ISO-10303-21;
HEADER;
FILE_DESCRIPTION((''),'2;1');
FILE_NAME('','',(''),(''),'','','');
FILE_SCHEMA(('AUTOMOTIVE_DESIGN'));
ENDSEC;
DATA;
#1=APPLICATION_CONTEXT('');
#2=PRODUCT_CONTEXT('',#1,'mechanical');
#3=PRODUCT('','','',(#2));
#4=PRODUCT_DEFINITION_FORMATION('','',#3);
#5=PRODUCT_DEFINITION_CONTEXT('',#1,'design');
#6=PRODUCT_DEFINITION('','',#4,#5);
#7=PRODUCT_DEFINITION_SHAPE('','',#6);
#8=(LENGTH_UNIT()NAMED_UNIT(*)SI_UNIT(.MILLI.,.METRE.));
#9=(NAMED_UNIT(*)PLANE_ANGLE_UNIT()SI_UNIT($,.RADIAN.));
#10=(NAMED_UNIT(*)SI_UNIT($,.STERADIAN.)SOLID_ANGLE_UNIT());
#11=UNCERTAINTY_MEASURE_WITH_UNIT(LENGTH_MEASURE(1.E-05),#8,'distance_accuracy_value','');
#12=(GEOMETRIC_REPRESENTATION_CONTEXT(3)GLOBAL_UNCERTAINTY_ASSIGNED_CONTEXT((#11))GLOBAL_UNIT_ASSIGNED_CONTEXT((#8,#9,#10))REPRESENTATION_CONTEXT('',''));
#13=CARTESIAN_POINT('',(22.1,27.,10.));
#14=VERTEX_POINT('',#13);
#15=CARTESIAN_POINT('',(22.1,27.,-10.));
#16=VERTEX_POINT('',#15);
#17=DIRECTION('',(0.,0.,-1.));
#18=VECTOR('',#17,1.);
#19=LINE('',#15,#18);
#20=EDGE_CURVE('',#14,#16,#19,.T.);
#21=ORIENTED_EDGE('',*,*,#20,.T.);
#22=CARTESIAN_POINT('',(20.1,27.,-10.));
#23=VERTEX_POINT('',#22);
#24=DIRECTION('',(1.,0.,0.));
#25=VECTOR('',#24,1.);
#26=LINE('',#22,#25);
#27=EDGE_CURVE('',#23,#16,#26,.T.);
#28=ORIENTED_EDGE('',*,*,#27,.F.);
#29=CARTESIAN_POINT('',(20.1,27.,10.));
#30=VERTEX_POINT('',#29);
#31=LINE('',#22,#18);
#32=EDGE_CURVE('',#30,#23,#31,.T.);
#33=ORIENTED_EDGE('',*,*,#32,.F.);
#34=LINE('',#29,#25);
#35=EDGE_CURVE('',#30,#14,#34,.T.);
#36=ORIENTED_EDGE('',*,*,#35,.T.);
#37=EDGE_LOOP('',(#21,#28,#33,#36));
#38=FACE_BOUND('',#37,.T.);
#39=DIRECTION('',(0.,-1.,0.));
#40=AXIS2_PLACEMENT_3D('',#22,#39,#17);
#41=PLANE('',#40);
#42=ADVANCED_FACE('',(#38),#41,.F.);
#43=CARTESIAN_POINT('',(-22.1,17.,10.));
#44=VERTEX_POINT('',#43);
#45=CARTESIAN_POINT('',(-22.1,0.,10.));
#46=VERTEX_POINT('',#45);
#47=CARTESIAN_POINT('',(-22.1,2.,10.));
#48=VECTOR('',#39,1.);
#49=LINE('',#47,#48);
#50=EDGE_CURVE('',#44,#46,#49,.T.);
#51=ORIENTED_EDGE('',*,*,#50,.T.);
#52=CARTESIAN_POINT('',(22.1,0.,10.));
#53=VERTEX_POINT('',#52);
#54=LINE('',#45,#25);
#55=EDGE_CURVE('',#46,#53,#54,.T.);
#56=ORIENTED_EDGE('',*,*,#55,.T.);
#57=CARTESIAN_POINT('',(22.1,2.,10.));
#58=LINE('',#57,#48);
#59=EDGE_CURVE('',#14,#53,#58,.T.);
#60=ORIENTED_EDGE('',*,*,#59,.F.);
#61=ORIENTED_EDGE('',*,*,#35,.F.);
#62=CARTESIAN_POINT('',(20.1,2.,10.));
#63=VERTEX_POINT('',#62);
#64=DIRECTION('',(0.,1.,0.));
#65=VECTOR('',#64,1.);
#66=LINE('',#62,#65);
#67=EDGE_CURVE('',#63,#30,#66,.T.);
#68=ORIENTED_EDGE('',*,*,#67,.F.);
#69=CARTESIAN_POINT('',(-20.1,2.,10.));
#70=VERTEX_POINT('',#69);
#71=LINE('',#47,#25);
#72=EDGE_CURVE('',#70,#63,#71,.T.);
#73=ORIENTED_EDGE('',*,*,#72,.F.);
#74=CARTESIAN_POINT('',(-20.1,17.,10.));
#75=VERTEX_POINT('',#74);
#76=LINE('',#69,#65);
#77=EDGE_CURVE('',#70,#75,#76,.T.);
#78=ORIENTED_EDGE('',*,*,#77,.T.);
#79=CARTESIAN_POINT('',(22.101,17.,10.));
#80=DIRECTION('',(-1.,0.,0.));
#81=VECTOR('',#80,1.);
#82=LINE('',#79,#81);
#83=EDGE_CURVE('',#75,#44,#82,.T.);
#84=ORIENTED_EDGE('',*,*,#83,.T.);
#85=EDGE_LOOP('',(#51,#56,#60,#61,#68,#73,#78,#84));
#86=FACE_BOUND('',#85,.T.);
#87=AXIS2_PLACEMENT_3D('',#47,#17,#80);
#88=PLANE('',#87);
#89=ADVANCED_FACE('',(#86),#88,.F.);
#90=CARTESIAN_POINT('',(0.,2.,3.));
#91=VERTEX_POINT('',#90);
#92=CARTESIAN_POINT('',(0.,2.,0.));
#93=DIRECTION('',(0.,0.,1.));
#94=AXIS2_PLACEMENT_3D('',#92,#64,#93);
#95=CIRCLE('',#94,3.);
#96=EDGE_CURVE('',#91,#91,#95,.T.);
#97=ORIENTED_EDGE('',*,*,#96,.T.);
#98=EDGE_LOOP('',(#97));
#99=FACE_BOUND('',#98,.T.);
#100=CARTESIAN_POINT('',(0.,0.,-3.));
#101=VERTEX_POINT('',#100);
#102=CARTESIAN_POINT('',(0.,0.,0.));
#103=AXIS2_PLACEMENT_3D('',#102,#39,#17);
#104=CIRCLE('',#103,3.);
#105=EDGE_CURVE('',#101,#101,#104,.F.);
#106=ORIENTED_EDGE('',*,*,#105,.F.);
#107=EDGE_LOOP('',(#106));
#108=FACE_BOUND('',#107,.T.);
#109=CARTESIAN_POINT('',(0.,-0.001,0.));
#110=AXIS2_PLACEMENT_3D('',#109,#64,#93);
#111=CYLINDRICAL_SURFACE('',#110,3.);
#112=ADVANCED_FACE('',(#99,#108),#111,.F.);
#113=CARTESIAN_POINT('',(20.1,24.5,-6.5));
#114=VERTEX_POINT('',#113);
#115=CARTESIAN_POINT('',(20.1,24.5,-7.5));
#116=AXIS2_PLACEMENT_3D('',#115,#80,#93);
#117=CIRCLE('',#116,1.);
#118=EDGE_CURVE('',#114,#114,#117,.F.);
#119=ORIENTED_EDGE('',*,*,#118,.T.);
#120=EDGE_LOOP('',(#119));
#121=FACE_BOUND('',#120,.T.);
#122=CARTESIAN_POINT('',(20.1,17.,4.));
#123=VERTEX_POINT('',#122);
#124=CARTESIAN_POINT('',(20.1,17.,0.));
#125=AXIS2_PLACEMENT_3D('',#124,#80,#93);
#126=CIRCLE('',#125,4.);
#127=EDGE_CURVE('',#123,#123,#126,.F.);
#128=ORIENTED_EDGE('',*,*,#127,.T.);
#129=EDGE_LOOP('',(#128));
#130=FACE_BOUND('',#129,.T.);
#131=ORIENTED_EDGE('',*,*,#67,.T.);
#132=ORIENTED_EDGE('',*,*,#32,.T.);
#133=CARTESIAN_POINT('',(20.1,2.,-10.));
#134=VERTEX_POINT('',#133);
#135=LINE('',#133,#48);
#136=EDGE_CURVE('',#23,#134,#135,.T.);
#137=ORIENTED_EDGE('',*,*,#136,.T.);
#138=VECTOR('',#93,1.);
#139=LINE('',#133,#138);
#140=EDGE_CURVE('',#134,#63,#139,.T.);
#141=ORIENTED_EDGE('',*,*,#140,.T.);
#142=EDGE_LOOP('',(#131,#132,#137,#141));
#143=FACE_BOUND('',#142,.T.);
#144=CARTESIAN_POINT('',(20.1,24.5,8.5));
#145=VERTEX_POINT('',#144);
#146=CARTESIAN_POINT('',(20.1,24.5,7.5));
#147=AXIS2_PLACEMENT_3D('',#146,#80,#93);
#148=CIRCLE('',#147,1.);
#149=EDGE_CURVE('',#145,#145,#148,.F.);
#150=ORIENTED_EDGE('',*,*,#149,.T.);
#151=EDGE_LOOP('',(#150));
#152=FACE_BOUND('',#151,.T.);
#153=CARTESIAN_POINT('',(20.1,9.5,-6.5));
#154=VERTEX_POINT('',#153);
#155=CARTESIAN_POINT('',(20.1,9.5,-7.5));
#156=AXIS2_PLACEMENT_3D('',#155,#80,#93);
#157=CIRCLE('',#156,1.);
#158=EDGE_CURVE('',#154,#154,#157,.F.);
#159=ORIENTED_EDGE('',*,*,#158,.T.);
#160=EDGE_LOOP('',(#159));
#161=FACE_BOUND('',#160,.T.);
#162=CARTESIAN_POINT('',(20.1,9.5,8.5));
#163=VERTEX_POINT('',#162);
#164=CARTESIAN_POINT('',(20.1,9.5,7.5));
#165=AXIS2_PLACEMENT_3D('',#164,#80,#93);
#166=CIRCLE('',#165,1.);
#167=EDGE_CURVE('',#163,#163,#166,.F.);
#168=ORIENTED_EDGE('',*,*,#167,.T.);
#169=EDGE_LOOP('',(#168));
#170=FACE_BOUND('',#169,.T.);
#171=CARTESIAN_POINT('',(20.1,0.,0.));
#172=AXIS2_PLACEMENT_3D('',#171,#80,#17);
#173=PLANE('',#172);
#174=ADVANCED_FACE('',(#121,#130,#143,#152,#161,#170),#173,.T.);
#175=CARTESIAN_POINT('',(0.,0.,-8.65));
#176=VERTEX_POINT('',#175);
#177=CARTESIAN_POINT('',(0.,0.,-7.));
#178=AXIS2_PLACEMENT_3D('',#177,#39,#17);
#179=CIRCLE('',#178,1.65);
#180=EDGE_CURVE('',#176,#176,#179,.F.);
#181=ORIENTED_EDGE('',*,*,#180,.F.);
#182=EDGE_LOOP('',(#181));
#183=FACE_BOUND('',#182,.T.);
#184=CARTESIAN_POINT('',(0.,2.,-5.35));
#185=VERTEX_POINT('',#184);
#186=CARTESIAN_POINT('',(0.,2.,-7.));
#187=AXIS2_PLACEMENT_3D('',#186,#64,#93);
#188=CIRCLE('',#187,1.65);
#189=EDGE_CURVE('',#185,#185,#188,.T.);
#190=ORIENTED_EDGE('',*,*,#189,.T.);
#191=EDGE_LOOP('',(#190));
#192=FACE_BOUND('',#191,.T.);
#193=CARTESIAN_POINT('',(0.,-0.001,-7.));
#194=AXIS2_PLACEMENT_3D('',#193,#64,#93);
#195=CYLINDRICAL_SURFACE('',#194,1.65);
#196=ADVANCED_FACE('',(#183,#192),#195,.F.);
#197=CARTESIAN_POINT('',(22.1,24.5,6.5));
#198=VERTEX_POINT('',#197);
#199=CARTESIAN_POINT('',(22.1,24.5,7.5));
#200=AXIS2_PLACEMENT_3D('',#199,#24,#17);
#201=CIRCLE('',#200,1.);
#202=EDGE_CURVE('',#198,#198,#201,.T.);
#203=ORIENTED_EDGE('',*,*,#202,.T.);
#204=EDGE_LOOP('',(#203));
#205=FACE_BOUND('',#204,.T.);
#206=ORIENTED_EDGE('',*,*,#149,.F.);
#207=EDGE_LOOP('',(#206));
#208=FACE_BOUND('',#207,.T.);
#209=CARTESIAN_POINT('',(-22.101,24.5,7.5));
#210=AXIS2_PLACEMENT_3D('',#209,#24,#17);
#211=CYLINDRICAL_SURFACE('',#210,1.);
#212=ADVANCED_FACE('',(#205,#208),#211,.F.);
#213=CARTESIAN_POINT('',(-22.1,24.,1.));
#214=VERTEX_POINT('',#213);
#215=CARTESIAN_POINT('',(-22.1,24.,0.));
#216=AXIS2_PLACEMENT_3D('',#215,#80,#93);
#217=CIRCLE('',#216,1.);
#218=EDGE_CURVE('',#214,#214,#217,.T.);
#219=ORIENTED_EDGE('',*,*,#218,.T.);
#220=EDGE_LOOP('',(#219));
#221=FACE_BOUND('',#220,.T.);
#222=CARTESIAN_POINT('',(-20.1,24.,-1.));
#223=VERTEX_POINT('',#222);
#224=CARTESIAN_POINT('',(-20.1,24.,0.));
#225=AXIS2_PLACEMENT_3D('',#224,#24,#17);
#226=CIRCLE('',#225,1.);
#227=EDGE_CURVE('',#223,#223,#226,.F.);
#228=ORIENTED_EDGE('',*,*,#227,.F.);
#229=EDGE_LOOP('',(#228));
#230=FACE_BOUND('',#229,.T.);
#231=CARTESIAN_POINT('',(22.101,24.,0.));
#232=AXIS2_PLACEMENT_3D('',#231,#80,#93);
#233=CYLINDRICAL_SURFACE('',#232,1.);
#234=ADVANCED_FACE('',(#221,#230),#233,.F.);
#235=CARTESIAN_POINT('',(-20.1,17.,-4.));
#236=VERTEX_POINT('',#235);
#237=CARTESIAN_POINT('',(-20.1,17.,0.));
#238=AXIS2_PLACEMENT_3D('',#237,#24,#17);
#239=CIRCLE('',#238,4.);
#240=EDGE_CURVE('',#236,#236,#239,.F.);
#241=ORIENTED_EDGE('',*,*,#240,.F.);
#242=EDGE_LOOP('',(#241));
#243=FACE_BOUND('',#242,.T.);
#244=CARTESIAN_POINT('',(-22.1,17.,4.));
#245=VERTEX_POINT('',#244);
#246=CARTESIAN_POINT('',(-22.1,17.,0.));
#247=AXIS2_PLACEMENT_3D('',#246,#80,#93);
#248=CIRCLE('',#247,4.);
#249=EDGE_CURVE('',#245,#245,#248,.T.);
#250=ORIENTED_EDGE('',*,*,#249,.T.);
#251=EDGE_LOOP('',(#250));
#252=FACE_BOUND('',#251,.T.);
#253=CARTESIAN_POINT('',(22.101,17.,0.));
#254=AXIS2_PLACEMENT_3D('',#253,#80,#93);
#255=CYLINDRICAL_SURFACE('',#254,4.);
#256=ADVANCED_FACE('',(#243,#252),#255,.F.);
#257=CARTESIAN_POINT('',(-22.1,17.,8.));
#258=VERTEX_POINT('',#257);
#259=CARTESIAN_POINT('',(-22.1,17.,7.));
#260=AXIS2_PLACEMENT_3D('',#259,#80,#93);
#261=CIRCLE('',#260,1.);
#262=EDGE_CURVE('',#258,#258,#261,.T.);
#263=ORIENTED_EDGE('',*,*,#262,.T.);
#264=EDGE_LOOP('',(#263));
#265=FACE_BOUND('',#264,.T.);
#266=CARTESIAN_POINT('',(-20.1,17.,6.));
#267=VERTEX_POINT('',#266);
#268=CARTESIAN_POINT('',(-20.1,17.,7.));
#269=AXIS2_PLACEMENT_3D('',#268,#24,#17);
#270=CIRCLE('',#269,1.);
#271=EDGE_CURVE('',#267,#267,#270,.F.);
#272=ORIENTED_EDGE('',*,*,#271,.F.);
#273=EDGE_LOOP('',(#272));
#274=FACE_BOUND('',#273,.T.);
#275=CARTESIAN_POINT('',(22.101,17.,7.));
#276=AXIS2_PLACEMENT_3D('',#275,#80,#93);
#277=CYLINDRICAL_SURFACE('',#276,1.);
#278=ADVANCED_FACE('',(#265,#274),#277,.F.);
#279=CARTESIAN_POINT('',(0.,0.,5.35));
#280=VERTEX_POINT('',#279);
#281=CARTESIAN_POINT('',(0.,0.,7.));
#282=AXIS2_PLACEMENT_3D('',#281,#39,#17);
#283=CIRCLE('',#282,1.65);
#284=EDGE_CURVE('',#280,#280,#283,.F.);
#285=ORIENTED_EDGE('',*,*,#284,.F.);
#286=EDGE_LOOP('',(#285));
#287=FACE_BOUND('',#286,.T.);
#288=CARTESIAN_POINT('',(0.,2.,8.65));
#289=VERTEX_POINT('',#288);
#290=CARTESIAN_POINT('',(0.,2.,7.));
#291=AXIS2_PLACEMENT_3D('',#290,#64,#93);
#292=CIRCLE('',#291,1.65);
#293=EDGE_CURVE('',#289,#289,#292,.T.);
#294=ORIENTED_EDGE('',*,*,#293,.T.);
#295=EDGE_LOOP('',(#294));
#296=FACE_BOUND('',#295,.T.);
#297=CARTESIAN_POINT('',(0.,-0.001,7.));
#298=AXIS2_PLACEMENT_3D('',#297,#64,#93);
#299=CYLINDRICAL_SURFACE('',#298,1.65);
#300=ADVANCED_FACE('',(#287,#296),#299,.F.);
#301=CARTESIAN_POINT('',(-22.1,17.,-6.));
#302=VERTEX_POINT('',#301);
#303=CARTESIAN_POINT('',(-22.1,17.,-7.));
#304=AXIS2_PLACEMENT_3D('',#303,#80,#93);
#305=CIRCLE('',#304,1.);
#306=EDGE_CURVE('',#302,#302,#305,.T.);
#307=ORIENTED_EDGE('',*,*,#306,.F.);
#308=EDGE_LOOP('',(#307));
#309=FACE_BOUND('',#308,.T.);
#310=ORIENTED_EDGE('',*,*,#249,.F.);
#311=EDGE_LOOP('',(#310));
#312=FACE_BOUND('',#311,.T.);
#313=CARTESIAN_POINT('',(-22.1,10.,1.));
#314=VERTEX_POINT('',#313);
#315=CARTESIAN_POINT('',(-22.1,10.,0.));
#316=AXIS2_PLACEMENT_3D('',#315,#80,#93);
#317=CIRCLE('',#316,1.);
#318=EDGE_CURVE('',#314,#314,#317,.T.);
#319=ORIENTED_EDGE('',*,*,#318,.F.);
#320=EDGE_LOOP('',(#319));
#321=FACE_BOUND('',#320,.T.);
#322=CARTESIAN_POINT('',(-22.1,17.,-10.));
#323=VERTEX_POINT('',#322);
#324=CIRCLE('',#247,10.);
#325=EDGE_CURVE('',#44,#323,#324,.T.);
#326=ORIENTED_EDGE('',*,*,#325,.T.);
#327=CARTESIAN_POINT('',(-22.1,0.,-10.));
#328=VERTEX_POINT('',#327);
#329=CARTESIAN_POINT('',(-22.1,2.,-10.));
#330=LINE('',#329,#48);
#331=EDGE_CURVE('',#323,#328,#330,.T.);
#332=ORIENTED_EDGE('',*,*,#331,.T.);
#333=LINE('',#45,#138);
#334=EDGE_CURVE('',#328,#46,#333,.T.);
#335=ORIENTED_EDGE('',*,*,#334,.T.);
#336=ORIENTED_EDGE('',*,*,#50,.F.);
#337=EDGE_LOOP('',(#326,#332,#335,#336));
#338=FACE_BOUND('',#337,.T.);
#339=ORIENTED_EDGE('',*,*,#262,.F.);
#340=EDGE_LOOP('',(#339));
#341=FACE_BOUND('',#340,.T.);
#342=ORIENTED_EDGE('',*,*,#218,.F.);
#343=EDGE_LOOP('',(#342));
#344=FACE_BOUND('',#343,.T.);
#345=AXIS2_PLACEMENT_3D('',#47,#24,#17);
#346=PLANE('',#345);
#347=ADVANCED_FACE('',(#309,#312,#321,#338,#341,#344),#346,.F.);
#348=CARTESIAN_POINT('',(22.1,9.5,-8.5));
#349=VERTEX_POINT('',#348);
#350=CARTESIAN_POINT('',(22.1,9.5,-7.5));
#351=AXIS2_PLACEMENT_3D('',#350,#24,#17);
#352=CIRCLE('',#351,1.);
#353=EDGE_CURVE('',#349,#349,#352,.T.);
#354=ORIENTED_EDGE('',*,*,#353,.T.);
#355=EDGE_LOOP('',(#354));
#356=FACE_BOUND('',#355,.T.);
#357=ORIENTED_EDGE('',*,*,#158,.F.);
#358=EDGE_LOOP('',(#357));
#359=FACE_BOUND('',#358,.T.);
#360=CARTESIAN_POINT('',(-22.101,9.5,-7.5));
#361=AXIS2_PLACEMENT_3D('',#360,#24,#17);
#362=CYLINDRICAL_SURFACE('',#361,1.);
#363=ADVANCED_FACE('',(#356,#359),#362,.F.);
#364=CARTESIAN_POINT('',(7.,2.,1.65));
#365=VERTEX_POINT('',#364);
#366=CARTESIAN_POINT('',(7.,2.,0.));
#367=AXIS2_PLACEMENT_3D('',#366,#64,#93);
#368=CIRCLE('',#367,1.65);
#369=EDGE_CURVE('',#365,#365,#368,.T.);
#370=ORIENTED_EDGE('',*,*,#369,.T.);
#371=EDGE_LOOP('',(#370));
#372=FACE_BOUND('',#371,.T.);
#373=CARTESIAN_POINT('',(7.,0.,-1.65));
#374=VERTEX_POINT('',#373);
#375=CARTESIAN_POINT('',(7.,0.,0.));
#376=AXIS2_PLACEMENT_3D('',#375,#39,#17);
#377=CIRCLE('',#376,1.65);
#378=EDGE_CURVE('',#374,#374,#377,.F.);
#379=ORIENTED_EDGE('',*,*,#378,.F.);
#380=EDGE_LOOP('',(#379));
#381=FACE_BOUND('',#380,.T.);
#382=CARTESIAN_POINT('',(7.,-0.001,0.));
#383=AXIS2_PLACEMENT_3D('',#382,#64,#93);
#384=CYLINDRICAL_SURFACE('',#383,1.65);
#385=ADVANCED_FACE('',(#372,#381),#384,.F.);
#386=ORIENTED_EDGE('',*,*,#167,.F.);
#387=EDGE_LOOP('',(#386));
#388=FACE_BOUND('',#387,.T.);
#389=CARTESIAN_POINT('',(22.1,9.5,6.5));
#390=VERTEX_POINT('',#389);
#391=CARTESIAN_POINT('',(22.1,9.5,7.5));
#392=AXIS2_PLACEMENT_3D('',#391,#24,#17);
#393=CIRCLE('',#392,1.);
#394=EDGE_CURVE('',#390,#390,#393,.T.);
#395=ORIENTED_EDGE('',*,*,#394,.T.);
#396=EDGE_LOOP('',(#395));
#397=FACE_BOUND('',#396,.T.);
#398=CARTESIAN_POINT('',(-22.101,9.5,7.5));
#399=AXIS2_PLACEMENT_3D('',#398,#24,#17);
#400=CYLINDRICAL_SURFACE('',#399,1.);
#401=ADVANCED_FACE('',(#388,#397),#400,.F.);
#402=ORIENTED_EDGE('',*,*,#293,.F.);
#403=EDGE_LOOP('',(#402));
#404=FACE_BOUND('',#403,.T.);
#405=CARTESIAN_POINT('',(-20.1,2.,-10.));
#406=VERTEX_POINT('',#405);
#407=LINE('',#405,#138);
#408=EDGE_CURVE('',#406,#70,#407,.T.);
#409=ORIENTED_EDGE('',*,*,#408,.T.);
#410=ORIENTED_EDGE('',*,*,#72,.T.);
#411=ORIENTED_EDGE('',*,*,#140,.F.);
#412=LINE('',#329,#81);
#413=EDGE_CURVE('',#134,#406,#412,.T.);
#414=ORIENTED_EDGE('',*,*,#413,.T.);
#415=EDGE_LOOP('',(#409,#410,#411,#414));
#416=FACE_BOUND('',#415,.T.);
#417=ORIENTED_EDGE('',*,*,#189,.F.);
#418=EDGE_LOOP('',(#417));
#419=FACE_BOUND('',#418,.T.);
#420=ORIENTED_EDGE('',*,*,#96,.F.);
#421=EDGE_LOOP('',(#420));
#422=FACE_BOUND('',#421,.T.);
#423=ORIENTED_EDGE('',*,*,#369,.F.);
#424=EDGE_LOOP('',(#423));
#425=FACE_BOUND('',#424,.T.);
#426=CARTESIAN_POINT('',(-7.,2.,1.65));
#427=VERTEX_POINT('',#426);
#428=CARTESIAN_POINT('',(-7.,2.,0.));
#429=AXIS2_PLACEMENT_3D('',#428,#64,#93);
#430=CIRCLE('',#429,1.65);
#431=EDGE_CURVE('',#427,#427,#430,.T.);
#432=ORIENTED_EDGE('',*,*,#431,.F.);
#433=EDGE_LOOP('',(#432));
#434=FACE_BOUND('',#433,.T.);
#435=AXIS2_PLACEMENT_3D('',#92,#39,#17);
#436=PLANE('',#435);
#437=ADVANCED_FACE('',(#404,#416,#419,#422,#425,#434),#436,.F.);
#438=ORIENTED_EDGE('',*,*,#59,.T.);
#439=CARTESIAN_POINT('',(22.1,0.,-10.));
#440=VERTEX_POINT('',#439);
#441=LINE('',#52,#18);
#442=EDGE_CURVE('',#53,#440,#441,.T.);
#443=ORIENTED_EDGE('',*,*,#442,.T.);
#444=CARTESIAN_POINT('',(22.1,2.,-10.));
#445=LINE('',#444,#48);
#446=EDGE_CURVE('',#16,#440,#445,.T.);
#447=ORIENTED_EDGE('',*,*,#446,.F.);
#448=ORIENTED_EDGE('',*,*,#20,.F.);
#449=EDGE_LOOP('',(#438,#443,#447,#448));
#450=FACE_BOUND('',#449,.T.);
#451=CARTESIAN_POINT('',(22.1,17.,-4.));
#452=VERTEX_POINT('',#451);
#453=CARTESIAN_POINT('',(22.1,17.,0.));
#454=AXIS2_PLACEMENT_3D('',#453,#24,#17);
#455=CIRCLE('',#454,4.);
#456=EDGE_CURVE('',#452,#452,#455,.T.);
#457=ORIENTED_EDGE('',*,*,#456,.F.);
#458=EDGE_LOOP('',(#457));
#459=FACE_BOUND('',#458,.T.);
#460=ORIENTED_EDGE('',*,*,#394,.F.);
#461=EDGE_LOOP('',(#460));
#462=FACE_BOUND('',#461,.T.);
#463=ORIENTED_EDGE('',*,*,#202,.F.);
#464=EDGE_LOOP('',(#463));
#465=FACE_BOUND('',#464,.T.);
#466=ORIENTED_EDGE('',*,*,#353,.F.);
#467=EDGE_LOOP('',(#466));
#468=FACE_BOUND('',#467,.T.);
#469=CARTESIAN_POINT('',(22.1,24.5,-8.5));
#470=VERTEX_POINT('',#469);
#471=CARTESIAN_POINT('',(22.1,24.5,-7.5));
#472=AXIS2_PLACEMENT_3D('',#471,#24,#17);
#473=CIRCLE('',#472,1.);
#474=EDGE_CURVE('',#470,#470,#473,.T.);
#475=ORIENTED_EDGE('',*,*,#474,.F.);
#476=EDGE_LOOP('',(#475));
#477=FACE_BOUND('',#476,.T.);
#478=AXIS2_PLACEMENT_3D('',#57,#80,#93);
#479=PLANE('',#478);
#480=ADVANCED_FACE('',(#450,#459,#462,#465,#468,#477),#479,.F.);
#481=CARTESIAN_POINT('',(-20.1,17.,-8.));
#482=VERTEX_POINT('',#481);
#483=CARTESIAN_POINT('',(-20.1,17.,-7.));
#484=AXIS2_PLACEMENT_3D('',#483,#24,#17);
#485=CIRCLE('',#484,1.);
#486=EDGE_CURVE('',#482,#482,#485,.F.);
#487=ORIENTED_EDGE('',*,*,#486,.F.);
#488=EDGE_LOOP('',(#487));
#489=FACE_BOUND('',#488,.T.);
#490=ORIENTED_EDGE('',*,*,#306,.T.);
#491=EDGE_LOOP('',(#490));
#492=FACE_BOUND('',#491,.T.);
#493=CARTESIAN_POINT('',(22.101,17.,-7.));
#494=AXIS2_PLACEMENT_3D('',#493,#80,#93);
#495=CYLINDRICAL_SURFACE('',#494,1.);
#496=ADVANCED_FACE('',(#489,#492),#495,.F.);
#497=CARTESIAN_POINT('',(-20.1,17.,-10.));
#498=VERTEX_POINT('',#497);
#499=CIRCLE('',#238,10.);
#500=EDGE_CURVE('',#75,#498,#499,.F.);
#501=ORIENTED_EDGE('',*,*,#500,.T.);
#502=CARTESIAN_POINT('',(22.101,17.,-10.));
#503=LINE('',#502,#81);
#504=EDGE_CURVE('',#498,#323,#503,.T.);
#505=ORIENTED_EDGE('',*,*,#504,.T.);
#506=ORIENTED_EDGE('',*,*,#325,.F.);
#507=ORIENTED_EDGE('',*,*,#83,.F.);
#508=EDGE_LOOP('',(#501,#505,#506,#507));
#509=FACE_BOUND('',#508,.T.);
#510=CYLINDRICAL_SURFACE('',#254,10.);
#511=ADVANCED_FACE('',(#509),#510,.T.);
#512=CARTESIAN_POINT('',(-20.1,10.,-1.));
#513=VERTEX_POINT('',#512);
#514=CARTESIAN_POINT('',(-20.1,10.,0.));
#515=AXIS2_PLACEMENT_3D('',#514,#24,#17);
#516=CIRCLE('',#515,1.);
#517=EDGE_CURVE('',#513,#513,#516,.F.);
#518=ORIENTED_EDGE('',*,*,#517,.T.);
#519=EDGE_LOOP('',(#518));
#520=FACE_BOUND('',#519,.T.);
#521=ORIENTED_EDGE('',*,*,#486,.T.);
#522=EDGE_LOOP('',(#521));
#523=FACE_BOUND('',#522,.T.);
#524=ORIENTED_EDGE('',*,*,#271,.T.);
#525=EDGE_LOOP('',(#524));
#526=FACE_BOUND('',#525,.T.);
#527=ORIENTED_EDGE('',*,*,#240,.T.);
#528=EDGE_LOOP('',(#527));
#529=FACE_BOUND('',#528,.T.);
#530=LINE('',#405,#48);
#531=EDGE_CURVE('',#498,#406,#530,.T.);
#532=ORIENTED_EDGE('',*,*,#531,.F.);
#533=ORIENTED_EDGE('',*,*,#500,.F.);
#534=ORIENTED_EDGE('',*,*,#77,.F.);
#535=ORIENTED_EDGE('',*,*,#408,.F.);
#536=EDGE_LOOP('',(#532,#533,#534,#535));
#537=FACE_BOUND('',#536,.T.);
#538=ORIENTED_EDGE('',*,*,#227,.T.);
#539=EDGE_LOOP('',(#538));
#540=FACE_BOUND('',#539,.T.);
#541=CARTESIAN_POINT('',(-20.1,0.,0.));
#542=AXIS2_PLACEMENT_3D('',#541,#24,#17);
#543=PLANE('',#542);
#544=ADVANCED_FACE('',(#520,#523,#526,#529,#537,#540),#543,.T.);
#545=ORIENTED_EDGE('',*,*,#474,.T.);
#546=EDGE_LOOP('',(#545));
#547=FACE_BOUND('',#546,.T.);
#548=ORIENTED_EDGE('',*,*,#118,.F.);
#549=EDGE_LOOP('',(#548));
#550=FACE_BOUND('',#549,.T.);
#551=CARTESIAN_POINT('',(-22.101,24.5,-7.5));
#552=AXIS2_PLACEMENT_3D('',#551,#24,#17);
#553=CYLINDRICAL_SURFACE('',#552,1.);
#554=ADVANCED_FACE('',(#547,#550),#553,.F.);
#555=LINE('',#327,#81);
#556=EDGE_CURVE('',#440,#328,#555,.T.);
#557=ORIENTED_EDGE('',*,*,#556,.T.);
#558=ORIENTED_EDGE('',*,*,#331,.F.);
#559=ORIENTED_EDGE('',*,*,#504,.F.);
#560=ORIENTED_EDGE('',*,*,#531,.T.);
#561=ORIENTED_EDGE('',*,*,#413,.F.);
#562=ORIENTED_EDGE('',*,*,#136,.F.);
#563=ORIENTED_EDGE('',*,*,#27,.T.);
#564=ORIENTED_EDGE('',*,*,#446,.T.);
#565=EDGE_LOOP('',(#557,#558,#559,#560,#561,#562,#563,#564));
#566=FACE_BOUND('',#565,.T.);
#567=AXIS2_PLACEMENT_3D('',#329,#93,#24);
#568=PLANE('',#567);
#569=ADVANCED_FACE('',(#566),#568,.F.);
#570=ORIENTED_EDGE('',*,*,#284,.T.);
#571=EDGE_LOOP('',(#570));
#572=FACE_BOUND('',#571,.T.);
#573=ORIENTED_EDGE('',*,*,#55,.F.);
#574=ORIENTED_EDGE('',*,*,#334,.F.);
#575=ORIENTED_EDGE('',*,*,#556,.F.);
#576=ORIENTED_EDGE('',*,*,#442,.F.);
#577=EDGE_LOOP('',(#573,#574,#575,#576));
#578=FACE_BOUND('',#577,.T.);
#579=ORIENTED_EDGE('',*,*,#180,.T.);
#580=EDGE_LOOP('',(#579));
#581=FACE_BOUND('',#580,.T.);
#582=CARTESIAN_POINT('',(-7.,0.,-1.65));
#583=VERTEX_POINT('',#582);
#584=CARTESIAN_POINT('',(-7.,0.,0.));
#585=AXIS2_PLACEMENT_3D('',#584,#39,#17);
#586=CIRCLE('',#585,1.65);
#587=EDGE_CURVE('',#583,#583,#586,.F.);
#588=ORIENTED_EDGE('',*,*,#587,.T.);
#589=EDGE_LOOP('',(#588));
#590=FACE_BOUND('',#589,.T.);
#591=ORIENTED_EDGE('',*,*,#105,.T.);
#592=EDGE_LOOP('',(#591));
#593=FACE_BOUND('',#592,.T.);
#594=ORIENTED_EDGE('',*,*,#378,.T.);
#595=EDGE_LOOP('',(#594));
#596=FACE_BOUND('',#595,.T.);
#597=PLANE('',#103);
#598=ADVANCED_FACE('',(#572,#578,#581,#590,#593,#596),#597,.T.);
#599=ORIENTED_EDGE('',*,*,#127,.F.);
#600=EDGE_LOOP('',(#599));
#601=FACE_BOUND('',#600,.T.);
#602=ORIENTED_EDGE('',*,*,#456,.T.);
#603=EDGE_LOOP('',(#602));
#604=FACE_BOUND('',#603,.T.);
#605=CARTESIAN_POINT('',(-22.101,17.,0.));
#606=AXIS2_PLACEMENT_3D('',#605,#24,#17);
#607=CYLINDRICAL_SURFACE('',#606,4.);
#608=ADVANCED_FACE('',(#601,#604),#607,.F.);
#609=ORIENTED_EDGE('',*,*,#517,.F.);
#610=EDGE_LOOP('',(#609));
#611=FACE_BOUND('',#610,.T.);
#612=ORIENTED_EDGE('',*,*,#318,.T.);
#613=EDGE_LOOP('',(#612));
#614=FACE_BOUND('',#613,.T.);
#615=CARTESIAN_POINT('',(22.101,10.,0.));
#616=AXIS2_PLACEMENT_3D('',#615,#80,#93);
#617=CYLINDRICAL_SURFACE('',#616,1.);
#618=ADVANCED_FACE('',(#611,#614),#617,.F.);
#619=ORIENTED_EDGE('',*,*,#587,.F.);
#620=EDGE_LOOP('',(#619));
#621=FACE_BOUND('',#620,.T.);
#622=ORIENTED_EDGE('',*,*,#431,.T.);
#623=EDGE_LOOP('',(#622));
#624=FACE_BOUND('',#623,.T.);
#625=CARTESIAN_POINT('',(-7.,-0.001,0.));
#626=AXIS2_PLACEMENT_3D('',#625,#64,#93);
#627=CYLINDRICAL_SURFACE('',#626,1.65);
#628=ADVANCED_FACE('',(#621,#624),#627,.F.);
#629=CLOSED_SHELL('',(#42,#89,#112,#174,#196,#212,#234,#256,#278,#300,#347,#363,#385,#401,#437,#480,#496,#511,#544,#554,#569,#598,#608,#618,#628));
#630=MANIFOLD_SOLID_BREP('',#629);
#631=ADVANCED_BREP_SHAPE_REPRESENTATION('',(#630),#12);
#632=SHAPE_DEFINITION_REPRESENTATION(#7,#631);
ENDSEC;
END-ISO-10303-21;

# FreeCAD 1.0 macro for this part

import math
import FreeCAD as App
import Part
import Sketcher
from FreeCAD import Vector
Q = App.Units.Quantity


def add_polygon(sketch, points):
    """Adds a closed chain of lines whose ends are joined by coincident constraints."""
    first, n = sketch.GeometryCount, len(points)
    for a, b in zip(points, points[1:] + points[:1]):
        sketch.addGeometry(Part.LineSegment(App.Vector(*a, 0), App.Vector(*b, 0)), False)
    for i in range(n):
        sketch.addConstraint(Sketcher.Constraint("Coincident", first + i, 2, first + (i + 1) % n, 1))

doc = App.newDocument("Part")
body = doc.addObject("PartDesign::Body", "Body")

# Sketch on XZ plane
sketch1 = body.newObject("Sketcher::SketchObject", "Sketch")
sketch1.AttachmentSupport = (doc.getObject("XZ_Plane"), [""])
sketch1.MapMode = "FlatFace"
add_polygon(sketch1, [(-22, -10), (-22, 10), (22, 10), (22, -10)])  # lines 0-3
sketch1.addConstraint([
    Sketcher.Constraint("Vertical", 0),
    Sketcher.Constraint("Horizontal", 1),
    Sketcher.Constraint("Vertical", 2),
    Sketcher.Constraint("Horizontal", 3),
    Sketcher.Constraint("Symmetric", 0, 2, 2, 2, -1, 1),
    Sketcher.Constraint("DistanceY", 0, 1, 0, 2, Q("20 mm")),
    Sketcher.Constraint("DistanceX", 1, 1, 1, 2, Q("44.2 mm")),
])
pad1 = body.newObject("PartDesign::Pad", "Pad")
pad1.Profile = sketch1
pad1.Length = 2
pad1.Reversed = True

# Sketch on XZ plane
sketch2 = body.newObject("Sketcher::SketchObject", "Sketch001")
sketch2.AttachmentSupport = (doc.getObject("XZ_Plane"), [""])
sketch2.MapMode = "FlatFace"
sketch2.AttachmentOffset = App.Placement(Vector(0, 0, -2), App.Rotation())
sketch2.addGeometry(Part.Circle(Vector(0, 0, 0), Vector(0, 0, 1), 3), False)
sketch2.addConstraint([
    Sketcher.Constraint("Coincident", 0, 3, -1, 1),
    Sketcher.Constraint("Diameter", 0, Q("6 mm")),
])
pocket1 = body.newObject("PartDesign::Pocket", "Pocket")
pocket1.Profile = sketch2
pocket1.Type = "UpToFirst"
pocket1.Reversed = True

# Sketch on XZ plane
sketch3 = body.newObject("Sketcher::SketchObject", "Sketch002")
sketch3.AttachmentSupport = (doc.getObject("XZ_Plane"), [""])
sketch3.MapMode = "FlatFace"
sketch3.AttachmentOffset = App.Placement(Vector(0, 0, -2), App.Rotation())
sketch3.addGeometry(Part.Circle(Vector(0, -7, 0), Vector(0, 0, 1), 1.6), False)
sketch3.addConstraint([
    Sketcher.Constraint("PointOnObject", 0, 3, -2),
    Sketcher.Constraint("Diameter", 0, Q("3.3 mm")),
    Sketcher.Constraint("DistanceY", 0, 3, -1, 1, Q("7 mm")),
])
pocket2 = body.newObject("PartDesign::Pocket", "Pocket001")
pocket2.Profile = sketch3
pocket2.Type = "UpToFirst"
pocket2.Reversed = True

# Sketch on XZ plane
sketch4 = body.newObject("Sketcher::SketchObject", "Sketch003")
sketch4.AttachmentSupport = (doc.getObject("XZ_Plane"), [""])
sketch4.MapMode = "FlatFace"
sketch4.AttachmentOffset = App.Placement(Vector(0, 0, -2), App.Rotation())
sketch4.addGeometry(Part.Circle(Vector(7, 0, 0), Vector(0, 0, 1), 1.6), False)
sketch4.addConstraint([
    Sketcher.Constraint("PointOnObject", 0, 3, -1),
    Sketcher.Constraint("Diameter", 0, Q("3.3 mm")),
    Sketcher.Constraint("DistanceX", -1, 1, 0, 3, Q("7 mm")),
])
pocket3 = body.newObject("PartDesign::Pocket", "Pocket002")
pocket3.Profile = sketch4
pocket3.Type = "UpToFirst"
pocket3.Reversed = True

# Sketch on XZ plane
sketch5 = body.newObject("Sketcher::SketchObject", "Sketch004")
sketch5.AttachmentSupport = (doc.getObject("XZ_Plane"), [""])
sketch5.MapMode = "FlatFace"
sketch5.AttachmentOffset = App.Placement(Vector(0, 0, -2), App.Rotation())
sketch5.addGeometry(Part.Circle(Vector(0, 7, 0), Vector(0, 0, 1), 1.6), False)
sketch5.addConstraint([
    Sketcher.Constraint("PointOnObject", 0, 3, -2),
    Sketcher.Constraint("Diameter", 0, Q("3.3 mm")),
    Sketcher.Constraint("DistanceY", -1, 1, 0, 3, Q("7 mm")),
])
pocket4 = body.newObject("PartDesign::Pocket", "Pocket003")
pocket4.Profile = sketch5
pocket4.Type = "UpToFirst"
pocket4.Reversed = True

# Sketch on XZ plane
sketch6 = body.newObject("Sketcher::SketchObject", "Sketch005")
sketch6.AttachmentSupport = (doc.getObject("XZ_Plane"), [""])
sketch6.MapMode = "FlatFace"
sketch6.AttachmentOffset = App.Placement(Vector(0, 0, -2), App.Rotation())
sketch6.addGeometry(Part.Circle(Vector(-7, 0, 0), Vector(0, 0, 1), 1.6), False)
sketch6.addConstraint([
    Sketcher.Constraint("PointOnObject", 0, 3, -1),
    Sketcher.Constraint("Diameter", 0, Q("3.3 mm")),
    Sketcher.Constraint("DistanceX", 0, 3, -1, 1, Q("7 mm")),
])
pocket5 = body.newObject("PartDesign::Pocket", "Pocket004")
pocket5.Profile = sketch6
pocket5.Type = "UpToFirst"
pocket5.Reversed = True

# Sketch on YZ plane
sketch7 = body.newObject("Sketcher::SketchObject", "Sketch006")
sketch7.AttachmentSupport = (doc.getObject("YZ_Plane"), [""])
sketch7.MapMode = "FlatFace"
sketch7.AttachmentOffset = App.Placement(Vector(0, 0, -22.1), App.Rotation())
add_polygon(sketch7, [(27, -10), (2, -10), (2, 10), (27, 10)])  # lines 0-3
sketch7.addConstraint([
    Sketcher.Constraint("Horizontal", 0),
    Sketcher.Constraint("Vertical", 1),
    Sketcher.Constraint("Horizontal", 2),
    Sketcher.Constraint("Vertical", 3),
    Sketcher.Constraint("DistanceX", 0, 2, 0, 1, Q("25 mm")),
    Sketcher.Constraint("DistanceY", 1, 1, 1, 2, Q("20 mm")),
    Sketcher.Constraint("DistanceX", -1, 1, 0, 2, Q("2 mm")),
    Sketcher.Constraint("DistanceY", 0, 2, -1, 1, Q("10 mm")),
])
pad2 = body.newObject("PartDesign::Pad", "Pad001")
pad2.Profile = sketch7
pad2.Length = 2
doc.recompute()

mirrored = body.newObject("PartDesign::Mirrored", "Mirrored")
mirrored.Originals = [pad2]
mirrored.MirrorPlane = (doc.getObject("YZ_Plane"), [""])
body.Tip = mirrored

# Sketch on YZ plane
sketch8 = body.newObject("Sketcher::SketchObject", "Sketch007")
sketch8.AttachmentSupport = (doc.getObject("YZ_Plane"), [""])
sketch8.MapMode = "FlatFace"
sketch8.AttachmentOffset = App.Placement(Vector(0, 0, -22.1), App.Rotation())
sketch8.addGeometry([
    Part.ArcOfCircle(Part.Circle(Vector(17, 0, 0), Vector(0, 0, 1), 10), math.radians(-90), math.radians(0)),
    Part.LineSegment(Vector(27, 0, 0), Vector(27, -10, 0)),
    Part.LineSegment(Vector(27, -10, 0), Vector(17, -10, 0)),
], False)
sketch8.addConstraint([
    Sketcher.Constraint("Tangent", 0, 2, 1, 1),
    Sketcher.Constraint("Coincident", 1, 2, 2, 1),
    Sketcher.Constraint("Tangent", 2, 2, 0, 1),
    Sketcher.Constraint("Vertical", 1),
    Sketcher.Constraint("Horizontal", 2),
    Sketcher.Constraint("PointOnObject", 0, 3, -1),
    Sketcher.Constraint("Radius", 0, Q("10 mm")),
    Sketcher.Constraint("DistanceX", -1, 1, 0, 3, Q("17 mm")),
])
pocket6 = body.newObject("PartDesign::Pocket", "Pocket005")
pocket6.Profile = sketch8
pocket6.Type = "UpToFirst"
pocket6.Reversed = True

# Sketch on YZ plane
sketch9 = body.newObject("Sketcher::SketchObject", "Sketch008")
sketch9.AttachmentSupport = (doc.getObject("YZ_Plane"), [""])
sketch9.MapMode = "FlatFace"
sketch9.AttachmentOffset = App.Placement(Vector(0, 0, -22.1), App.Rotation())
sketch9.addGeometry([
    Part.LineSegment(Vector(27, 10, 0), Vector(27, 0, 0)),
    Part.ArcOfCircle(Part.Circle(Vector(17, 0, 0), Vector(0, 0, 1), 10), math.radians(0), math.radians(90)),
    Part.LineSegment(Vector(17, 10, 0), Vector(27, 10, 0)),
], False)
sketch9.addConstraint([
    Sketcher.Constraint("Tangent", 0, 2, 1, 1),
    Sketcher.Constraint("Tangent", 1, 2, 2, 1),
    Sketcher.Constraint("Coincident", 2, 2, 0, 1),
    Sketcher.Constraint("Vertical", 0),
    Sketcher.Constraint("Horizontal", 2),
    Sketcher.Constraint("PointOnObject", 1, 3, -1),
    Sketcher.Constraint("Radius", 1, Q("10 mm")),
    Sketcher.Constraint("DistanceX", -1, 1, 1, 3, Q("17 mm")),
])
pocket7 = body.newObject("PartDesign::Pocket", "Pocket006")
pocket7.Profile = sketch9
pocket7.Type = "UpToFirst"
pocket7.Reversed = True

# Sketch on YZ plane
sketch10 = body.newObject("Sketcher::SketchObject", "Sketch009")
sketch10.AttachmentSupport = (doc.getObject("YZ_Plane"), [""])
sketch10.MapMode = "FlatFace"
sketch10.AttachmentOffset = App.Placement(Vector(0, 0, -22.1), App.Rotation())
sketch10.addGeometry([
    Part.ArcOfCircle(Part.Circle(Vector(10, 0, 0), Vector(0, 0, 1), 1), math.radians(0), math.radians(90)),
    Part.LineSegment(Vector(11, 0, 0), Vector(9, 0, 0)),
    Part.ArcOfCircle(Part.Circle(Vector(10, 0, 0), Vector(0, 0, 1), 1), math.radians(90), math.radians(180)),
], False)
sketch10.addConstraint([
    Sketcher.Constraint("Coincident", 0, 1, 1, 1),
    Sketcher.Constraint("Coincident", 1, 2, 2, 2),
    Sketcher.Constraint("Tangent", 2, 1, 0, 2),
    Sketcher.Constraint("Horizontal", 1),
    Sketcher.Constraint("Equal", 0, 2),
    Sketcher.Constraint("PointOnObject", 0, 3, -1),
    Sketcher.Constraint("PointOnObject", 0, 1, -1),
    Sketcher.Constraint("Vertical", 0, 3, 2, 1),
    Sketcher.Constraint("Radius", 0, Q("1 mm")),
    Sketcher.Constraint("DistanceX", -1, 1, 0, 3, Q("10 mm")),
])
pocket8 = body.newObject("PartDesign::Pocket", "Pocket007")
pocket8.Profile = sketch10
pocket8.Type = "UpToFirst"
pocket8.Reversed = True

# Sketch on YZ plane
sketch11 = body.newObject("Sketcher::SketchObject", "Sketch010")
sketch11.AttachmentSupport = (doc.getObject("YZ_Plane"), [""])
sketch11.MapMode = "FlatFace"
sketch11.AttachmentOffset = App.Placement(Vector(0, 0, -22.1), App.Rotation())
sketch11.addGeometry([
    Part.LineSegment(Vector(9, 0, 0), Vector(11, 0, 0)),
    Part.ArcOfCircle(Part.Circle(Vector(10, 0, 0), Vector(0, 0, 1), 1), math.radians(180), math.radians(360)),
], False)
sketch11.addConstraint([
    Sketcher.Constraint("Coincident", 0, 1, 1, 1),
    Sketcher.Constraint("Coincident", 1, 2, 0, 2),
    Sketcher.Constraint("Horizontal", 0),
    Sketcher.Constraint("PointOnObject", 1, 3, -1),
    Sketcher.Constraint("PointOnObject", 0, 1, -1),
    Sketcher.Constraint("Radius", 1, Q("1 mm")),
    Sketcher.Constraint("DistanceX", -1, 1, 1, 3, Q("10 mm")),
])
pocket9 = body.newObject("PartDesign::Pocket", "Pocket008")
pocket9.Profile = sketch11
pocket9.Type = "UpToFirst"
pocket9.Reversed = True

# Sketch on YZ plane
sketch12 = body.newObject("Sketcher::SketchObject", "Sketch011")
sketch12.AttachmentSupport = (doc.getObject("YZ_Plane"), [""])
sketch12.MapMode = "FlatFace"
sketch12.AttachmentOffset = App.Placement(Vector(0, 0, -22.1), App.Rotation())
sketch12.addGeometry([
    Part.ArcOfCircle(Part.Circle(Vector(10, 0, 0), Vector(0, 0, 1), 1), math.radians(0), math.radians(90)),
    Part.LineSegment(Vector(11, 0, 0), Vector(9, 0, 0)),
    Part.ArcOfCircle(Part.Circle(Vector(10, 0, 0), Vector(0, 0, 1), 1), math.radians(90), math.radians(180)),
], False)
sketch12.addConstraint([
    Sketcher.Constraint("Coincident", 0, 1, 1, 1),
    Sketcher.Constraint("Coincident", 1, 2, 2, 2),
    Sketcher.Constraint("Tangent", 2, 1, 0, 2),
    Sketcher.Constraint("Horizontal", 1),
    Sketcher.Constraint("Equal", 0, 2),
    Sketcher.Constraint("PointOnObject", 0, 3, -1),
    Sketcher.Constraint("PointOnObject", 0, 1, -1),
    Sketcher.Constraint("Vertical", 0, 3, 2, 1),
    Sketcher.Constraint("Radius", 0, Q("1 mm")),
    Sketcher.Constraint("DistanceX", -1, 1, 0, 3, Q("10 mm")),
])
pocket10 = body.newObject("PartDesign::Pocket", "Pocket009")
pocket10.Profile = sketch12
pocket10.Type = "UpToFirst"
pocket10.Reversed = True

# Sketch on YZ plane
sketch13 = body.newObject("Sketcher::SketchObject", "Sketch012")
sketch13.AttachmentSupport = (doc.getObject("YZ_Plane"), [""])
sketch13.MapMode = "FlatFace"
sketch13.AttachmentOffset = App.Placement(Vector(0, 0, -22.1), App.Rotation())
sketch13.addGeometry([
    Part.LineSegment(Vector(9, 0, 0), Vector(11, 0, 0)),
    Part.ArcOfCircle(Part.Circle(Vector(10, 0, 0), Vector(0, 0, 1), 1), math.radians(180), math.radians(360)),
], False)
sketch13.addConstraint([
    Sketcher.Constraint("Coincident", 0, 1, 1, 1),
    Sketcher.Constraint("Coincident", 1, 2, 0, 2),
    Sketcher.Constraint("Horizontal", 0),
    Sketcher.Constraint("PointOnObject", 1, 3, -1),
    Sketcher.Constraint("PointOnObject", 0, 1, -1),
    Sketcher.Constraint("Radius", 1, Q("1 mm")),
    Sketcher.Constraint("DistanceX", -1, 1, 1, 3, Q("10 mm")),
])
pocket11 = body.newObject("PartDesign::Pocket", "Pocket010")
pocket11.Profile = sketch13
pocket11.Type = "UpToFirst"
pocket11.Reversed = True

# Sketch on YZ plane
sketch14 = body.newObject("Sketcher::SketchObject", "Sketch013")
sketch14.AttachmentSupport = (doc.getObject("YZ_Plane"), [""])
sketch14.MapMode = "FlatFace"
sketch14.AttachmentOffset = App.Placement(Vector(0, 0, -22.1), App.Rotation())
sketch14.addGeometry([
    Part.ArcOfCircle(Part.Circle(Vector(17, 0, 0), Vector(0, 0, 1), 4), math.radians(0), math.radians(90)),
    Part.LineSegment(Vector(21, 0, 0), Vector(13, 0, 0)),
    Part.ArcOfCircle(Part.Circle(Vector(17, 0, 0), Vector(0, 0, 1), 4), math.radians(90), math.radians(180)),
], False)
sketch14.addConstraint([
    Sketcher.Constraint("Coincident", 0, 1, 1, 1),
    Sketcher.Constraint("Coincident", 1, 2, 2, 2),
    Sketcher.Constraint("Tangent", 2, 1, 0, 2),
    Sketcher.Constraint("Horizontal", 1),
    Sketcher.Constraint("Equal", 0, 2),
    Sketcher.Constraint("PointOnObject", 0, 3, -1),
    Sketcher.Constraint("PointOnObject", 0, 1, -1),
    Sketcher.Constraint("Vertical", 0, 3, 2, 1),
    Sketcher.Constraint("Radius", 0, Q("4 mm")),
    Sketcher.Constraint("DistanceX", -1, 1, 0, 3, Q("17 mm")),
])
pocket12 = body.newObject("PartDesign::Pocket", "Pocket011")
pocket12.Profile = sketch14
pocket12.Type = "UpToFirst"
pocket12.Reversed = True

# Sketch on YZ plane
sketch15 = body.newObject("Sketcher::SketchObject", "Sketch014")
sketch15.AttachmentSupport = (doc.getObject("YZ_Plane"), [""])
sketch15.MapMode = "FlatFace"
sketch15.AttachmentOffset = App.Placement(Vector(0, 0, -22.1), App.Rotation())
sketch15.addGeometry([
    Part.LineSegment(Vector(13, 0, 0), Vector(21, 0, 0)),
    Part.ArcOfCircle(Part.Circle(Vector(17, 0, 0), Vector(0, 0, 1), 4), math.radians(180), math.radians(360)),
], False)
sketch15.addConstraint([
    Sketcher.Constraint("Coincident", 0, 1, 1, 1),
    Sketcher.Constraint("Coincident", 1, 2, 0, 2),
    Sketcher.Constraint("Horizontal", 0),
    Sketcher.Constraint("PointOnObject", 1, 3, -1),
    Sketcher.Constraint("PointOnObject", 0, 1, -1),
    Sketcher.Constraint("Radius", 1, Q("4 mm")),
    Sketcher.Constraint("DistanceX", -1, 1, 1, 3, Q("17 mm")),
])
pocket13 = body.newObject("PartDesign::Pocket", "Pocket012")
pocket13.Profile = sketch15
pocket13.Type = "UpToFirst"
pocket13.Reversed = True

# Sketch on YZ plane
sketch16 = body.newObject("Sketcher::SketchObject", "Sketch015")
sketch16.AttachmentSupport = (doc.getObject("YZ_Plane"), [""])
sketch16.MapMode = "FlatFace"
sketch16.AttachmentOffset = App.Placement(Vector(0, 0, -22.1), App.Rotation())
sketch16.addGeometry([
    Part.ArcOfCircle(Part.Circle(Vector(17, 0, 0), Vector(0, 0, 1), 4), math.radians(0), math.radians(90)),
    Part.LineSegment(Vector(21, 0, 0), Vector(13, 0, 0)),
    Part.ArcOfCircle(Part.Circle(Vector(17, 0, 0), Vector(0, 0, 1), 4), math.radians(90), math.radians(180)),
], False)
sketch16.addConstraint([
    Sketcher.Constraint("Coincident", 0, 1, 1, 1),
    Sketcher.Constraint("Coincident", 1, 2, 2, 2),
    Sketcher.Constraint("Tangent", 2, 1, 0, 2),
    Sketcher.Constraint("Horizontal", 1),
    Sketcher.Constraint("Equal", 0, 2),
    Sketcher.Constraint("PointOnObject", 0, 3, -1),
    Sketcher.Constraint("PointOnObject", 0, 1, -1),
    Sketcher.Constraint("Vertical", 0, 3, 2, 1),
    Sketcher.Constraint("Radius", 0, Q("4 mm")),
    Sketcher.Constraint("DistanceX", -1, 1, 0, 3, Q("17 mm")),
])
pocket14 = body.newObject("PartDesign::Pocket", "Pocket013")
pocket14.Profile = sketch16
pocket14.Type = "UpToFirst"
pocket14.Reversed = True

# Sketch on YZ plane
sketch17 = body.newObject("Sketcher::SketchObject", "Sketch016")
sketch17.AttachmentSupport = (doc.getObject("YZ_Plane"), [""])
sketch17.MapMode = "FlatFace"
sketch17.AttachmentOffset = App.Placement(Vector(0, 0, -22.1), App.Rotation())
sketch17.addGeometry([
    Part.LineSegment(Vector(13, 0, 0), Vector(21, 0, 0)),
    Part.ArcOfCircle(Part.Circle(Vector(17, 0, 0), Vector(0, 0, 1), 4), math.radians(180), math.radians(360)),
], False)
sketch17.addConstraint([
    Sketcher.Constraint("Coincident", 0, 1, 1, 1),
    Sketcher.Constraint("Coincident", 1, 2, 0, 2),
    Sketcher.Constraint("Horizontal", 0),
    Sketcher.Constraint("PointOnObject", 1, 3, -1),
    Sketcher.Constraint("PointOnObject", 0, 1, -1),
    Sketcher.Constraint("Radius", 1, Q("4 mm")),
    Sketcher.Constraint("DistanceX", -1, 1, 1, 3, Q("17 mm")),
])
pocket15 = body.newObject("PartDesign::Pocket", "Pocket014")
pocket15.Profile = sketch17
pocket15.Type = "UpToFirst"
pocket15.Reversed = True

# Sketch on YZ plane
sketch18 = body.newObject("Sketcher::SketchObject", "Sketch017")
sketch18.AttachmentSupport = (doc.getObject("YZ_Plane"), [""])
sketch18.MapMode = "FlatFace"
sketch18.AttachmentOffset = App.Placement(Vector(0, 0, -22.1), App.Rotation())
sketch18.addGeometry(Part.Circle(Vector(17, 7, 0), Vector(0, 0, 1), 1), False)
sketch18.addConstraint([
    Sketcher.Constraint("Diameter", 0, Q("2 mm")),
    Sketcher.Constraint("DistanceX", -1, 1, 0, 3, Q("17 mm")),
    Sketcher.Constraint("DistanceY", -1, 1, 0, 3, Q("7 mm")),
])
pocket16 = body.newObject("PartDesign::Pocket", "Pocket015")
pocket16.Profile = sketch18
pocket16.Type = "UpToFirst"
pocket16.Reversed = True

# Sketch on YZ plane
sketch19 = body.newObject("Sketcher::SketchObject", "Sketch018")
sketch19.AttachmentSupport = (doc.getObject("YZ_Plane"), [""])
sketch19.MapMode = "FlatFace"
sketch19.AttachmentOffset = App.Placement(Vector(0, 0, -22.1), App.Rotation())
sketch19.addGeometry(Part.Circle(Vector(24, 0, 0), Vector(0, 0, 1), 1), False)
sketch19.addConstraint([
    Sketcher.Constraint("PointOnObject", 0, 3, -1),
    Sketcher.Constraint("Diameter", 0, Q("2 mm")),
    Sketcher.Constraint("DistanceX", -1, 1, 0, 3, Q("24 mm")),
])
pocket17 = body.newObject("PartDesign::Pocket", "Pocket016")
pocket17.Profile = sketch19
pocket17.Type = "UpToFirst"
pocket17.Reversed = True

# Sketch on YZ plane
sketch20 = body.newObject("Sketcher::SketchObject", "Sketch019")
sketch20.AttachmentSupport = (doc.getObject("YZ_Plane"), [""])
sketch20.MapMode = "FlatFace"
sketch20.AttachmentOffset = App.Placement(Vector(0, 0, -22.1), App.Rotation())
sketch20.addGeometry(Part.Circle(Vector(17, -7, 0), Vector(0, 0, 1), 1), False)
sketch20.addConstraint([
    Sketcher.Constraint("Diameter", 0, Q("2 mm")),
    Sketcher.Constraint("DistanceX", -1, 1, 0, 3, Q("17 mm")),
    Sketcher.Constraint("DistanceY", 0, 3, -1, 1, Q("7 mm")),
])
pocket18 = body.newObject("PartDesign::Pocket", "Pocket017")
pocket18.Profile = sketch20
pocket18.Type = "UpToFirst"
pocket18.Reversed = True

# Sketch on YZ plane
sketch21 = body.newObject("Sketcher::SketchObject", "Sketch020")
sketch21.AttachmentSupport = (doc.getObject("YZ_Plane"), [""])
sketch21.MapMode = "FlatFace"
sketch21.AttachmentOffset = App.Placement(Vector(0, 0, 22.1), App.Rotation())
sketch21.addGeometry(Part.Circle(Vector(17, 0, 0), Vector(0, 0, 1), 4), False)
sketch21.addConstraint([
    Sketcher.Constraint("PointOnObject", 0, 3, -1),
    Sketcher.Constraint("Diameter", 0, Q("8 mm")),
    Sketcher.Constraint("DistanceX", -1, 1, 0, 3, Q("17 mm")),
])
pocket19 = body.newObject("PartDesign::Pocket", "Pocket018")
pocket19.Profile = sketch21
pocket19.Type = "UpToFirst"

# Sketch on YZ plane
sketch22 = body.newObject("Sketcher::SketchObject", "Sketch021")
sketch22.AttachmentSupport = (doc.getObject("YZ_Plane"), [""])
sketch22.MapMode = "FlatFace"
sketch22.AttachmentOffset = App.Placement(Vector(0, 0, 22.1), App.Rotation())
sketch22.addGeometry(Part.Circle(Vector(24.5, 7.5, 0), Vector(0, 0, 1), 1), False)
sketch22.addConstraint([
    Sketcher.Constraint("Diameter", 0, Q("2 mm")),
    Sketcher.Constraint("DistanceX", -1, 1, 0, 3, Q("24.5 mm")),
    Sketcher.Constraint("DistanceY", -1, 1, 0, 3, Q("7.5 mm")),
])
pocket20 = body.newObject("PartDesign::Pocket", "Pocket019")
pocket20.Profile = sketch22
pocket20.Type = "UpToFirst"

# Sketch on YZ plane
sketch23 = body.newObject("Sketcher::SketchObject", "Sketch022")
sketch23.AttachmentSupport = (doc.getObject("YZ_Plane"), [""])
sketch23.MapMode = "FlatFace"
sketch23.AttachmentOffset = App.Placement(Vector(0, 0, 22.1), App.Rotation())
sketch23.addGeometry(Part.Circle(Vector(24.5, -7.5, 0), Vector(0, 0, 1), 1), False)
sketch23.addConstraint([
    Sketcher.Constraint("Diameter", 0, Q("2 mm")),
    Sketcher.Constraint("DistanceX", -1, 1, 0, 3, Q("24.5 mm")),
    Sketcher.Constraint("DistanceY", 0, 3, -1, 1, Q("7.5 mm")),
])
pocket21 = body.newObject("PartDesign::Pocket", "Pocket020")
pocket21.Profile = sketch23
pocket21.Type = "UpToFirst"

# Sketch on YZ plane
sketch24 = body.newObject("Sketcher::SketchObject", "Sketch023")
sketch24.AttachmentSupport = (doc.getObject("YZ_Plane"), [""])
sketch24.MapMode = "FlatFace"
sketch24.AttachmentOffset = App.Placement(Vector(0, 0, 22.1), App.Rotation())
sketch24.addGeometry(Part.Circle(Vector(9.5, -7.5, 0), Vector(0, 0, 1), 1), False)
sketch24.addConstraint([
    Sketcher.Constraint("Diameter", 0, Q("2 mm")),
    Sketcher.Constraint("DistanceX", -1, 1, 0, 3, Q("9.5 mm")),
    Sketcher.Constraint("DistanceY", 0, 3, -1, 1, Q("7.5 mm")),
])
pocket22 = body.newObject("PartDesign::Pocket", "Pocket021")
pocket22.Profile = sketch24
pocket22.Type = "UpToFirst"

# Sketch on YZ plane
sketch25 = body.newObject("Sketcher::SketchObject", "Sketch024")
sketch25.AttachmentSupport = (doc.getObject("YZ_Plane"), [""])
sketch25.MapMode = "FlatFace"
sketch25.AttachmentOffset = App.Placement(Vector(0, 0, 22.1), App.Rotation())
sketch25.addGeometry(Part.Circle(Vector(9.5, 7.5, 0), Vector(0, 0, 1), 1), False)
sketch25.addConstraint([
    Sketcher.Constraint("Diameter", 0, Q("2 mm")),
    Sketcher.Constraint("DistanceX", -1, 1, 0, 3, Q("9.5 mm")),
    Sketcher.Constraint("DistanceY", -1, 1, 0, 3, Q("7.5 mm")),
])
pocket23 = body.newObject("PartDesign::Pocket", "Pocket022")
pocket23.Profile = sketch25
pocket23.Type = "UpToFirst"

doc.recompute()
